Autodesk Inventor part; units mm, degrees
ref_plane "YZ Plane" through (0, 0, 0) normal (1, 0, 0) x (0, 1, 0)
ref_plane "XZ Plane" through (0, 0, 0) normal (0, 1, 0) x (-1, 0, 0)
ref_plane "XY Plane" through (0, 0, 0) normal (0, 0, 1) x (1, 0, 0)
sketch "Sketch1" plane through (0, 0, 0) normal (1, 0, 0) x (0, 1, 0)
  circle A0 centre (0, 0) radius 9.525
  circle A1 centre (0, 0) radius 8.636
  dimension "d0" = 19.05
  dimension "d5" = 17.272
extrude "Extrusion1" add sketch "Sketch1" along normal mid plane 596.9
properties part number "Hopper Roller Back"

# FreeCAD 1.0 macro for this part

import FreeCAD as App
import Part
import Sketcher

V = App.Vector
Q = App.Units.Quantity

doc = App.newDocument("Part")
body = doc.addObject("PartDesign::Body", "Body")

sketch1 = body.newObject("Sketcher::SketchObject", "Sketch")
sketch1.AttachmentSupport = (doc.getObject("YZ_Plane"), [""])
sketch1.MapMode = "FlatFace"
sketch1.addGeometry([
    Part.Circle(V(0, 0, 0), V(0, 0, 1), 9.525),
    Part.Circle(V(0, 0, 0), V(0, 0, 1), 8.636),
], False)
sketch1.addConstraint([
    Sketcher.Constraint("Coincident", 0, 3, -1, 1),
    Sketcher.Constraint("Coincident", 1, 3, -1, 1),
    Sketcher.Constraint("Diameter", 0, Q("0.75 in")),
    Sketcher.Constraint("Diameter", 1, Q("0.68 in")),
])
pad1 = body.newObject("PartDesign::Pad", "Pad")
pad1.Profile = sketch1
pad1.Length = Q("23.5 in")
pad1.Midplane = True

doc.recompute()
